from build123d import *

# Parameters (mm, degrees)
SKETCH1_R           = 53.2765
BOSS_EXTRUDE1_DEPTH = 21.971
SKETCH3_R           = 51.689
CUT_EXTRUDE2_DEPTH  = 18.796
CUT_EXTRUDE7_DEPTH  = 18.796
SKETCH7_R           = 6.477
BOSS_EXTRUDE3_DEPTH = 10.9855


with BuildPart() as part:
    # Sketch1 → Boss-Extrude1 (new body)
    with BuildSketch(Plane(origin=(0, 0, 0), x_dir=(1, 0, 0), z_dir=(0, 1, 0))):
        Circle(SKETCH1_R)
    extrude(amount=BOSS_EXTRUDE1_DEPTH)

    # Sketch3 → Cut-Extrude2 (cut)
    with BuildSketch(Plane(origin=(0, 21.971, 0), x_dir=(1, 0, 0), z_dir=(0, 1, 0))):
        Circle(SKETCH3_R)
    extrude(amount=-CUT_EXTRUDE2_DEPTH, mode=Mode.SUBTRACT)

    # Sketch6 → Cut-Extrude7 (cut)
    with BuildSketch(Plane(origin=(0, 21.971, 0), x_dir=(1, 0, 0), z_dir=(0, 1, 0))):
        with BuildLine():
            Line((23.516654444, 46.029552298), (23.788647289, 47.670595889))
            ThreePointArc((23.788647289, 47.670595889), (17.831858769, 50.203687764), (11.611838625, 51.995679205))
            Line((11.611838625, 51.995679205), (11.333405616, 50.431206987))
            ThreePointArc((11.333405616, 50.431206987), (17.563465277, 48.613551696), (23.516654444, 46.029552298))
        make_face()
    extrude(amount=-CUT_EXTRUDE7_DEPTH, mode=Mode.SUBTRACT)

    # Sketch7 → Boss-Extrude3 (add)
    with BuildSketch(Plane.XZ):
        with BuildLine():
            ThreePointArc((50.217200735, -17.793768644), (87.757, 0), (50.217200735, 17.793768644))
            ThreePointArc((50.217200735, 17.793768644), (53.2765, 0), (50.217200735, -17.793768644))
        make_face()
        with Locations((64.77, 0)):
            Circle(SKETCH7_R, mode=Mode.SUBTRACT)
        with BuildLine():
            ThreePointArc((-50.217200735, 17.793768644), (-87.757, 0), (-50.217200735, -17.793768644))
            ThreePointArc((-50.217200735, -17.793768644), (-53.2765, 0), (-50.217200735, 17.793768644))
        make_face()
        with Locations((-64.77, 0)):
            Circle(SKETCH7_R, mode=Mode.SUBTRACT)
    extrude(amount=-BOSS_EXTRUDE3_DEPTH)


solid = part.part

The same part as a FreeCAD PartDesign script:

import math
import FreeCAD as App
import Part
import Sketcher
from FreeCAD import Vector
Q = App.Units.Quantity

doc = App.newDocument("Part")
body = doc.addObject("PartDesign::Body", "Body")

# Sketch on XZ plane
sketch1 = doc.addObject("Sketcher::SketchObject", "Sketch")
body.addObject(sketch1)
sketch1.AttachmentSupport = (doc.XZ_Plane, [""])
sketch1.MapMode = "FlatFace"
sketch1.addGeometry(Part.Circle(Vector(0, 0, 0), Vector(0, 0, 1), 53), False)
sketch1.addConstraint(Sketcher.Constraint("Coincident", 0, 3, -1, 1))
sketch1.addConstraint(Sketcher.Constraint("Diameter", 0, Q("4.195 in")))
pad1 = doc.addObject("PartDesign::Pad", "Pad")
body.addObject(pad1)
pad1.Profile = sketch1
pad1.Length = Q("0.865 in")
pad1.Reversed = True

# Sketch on XZ plane
sketch2 = doc.addObject("Sketcher::SketchObject", "Sketch001")
body.addObject(sketch2)
sketch2.AttachmentSupport = (doc.XZ_Plane, [""])
sketch2.MapMode = "FlatFace"
sketch2.AttachmentOffset = App.Placement(Vector(0, 0, -0.865 * 25.4), App.Rotation())
sketch2.addGeometry(Part.Circle(Vector(0, 0, 0), Vector(0, 0, 1), 52), False)
sketch2.addConstraint(Sketcher.Constraint("Coincident", 0, 3, -1, 1))
sketch2.addConstraint(Sketcher.Constraint("Diameter", 0, Q("4.07 in")))
pocket1 = doc.addObject("PartDesign::Pocket", "Pocket")
body.addObject(pocket1)
pocket1.Profile = sketch2
pocket1.Length = Q("0.74 in")
pocket1.Reversed = True

# Sketch on XZ plane
sketch3 = doc.addObject("Sketcher::SketchObject", "Sketch002")
body.addObject(sketch3)
sketch3.AttachmentSupport = (doc.XZ_Plane, [""])
sketch3.MapMode = "FlatFace"
sketch3.AttachmentOffset = App.Placement(Vector(0, 0, -0.865 * 25.4), App.Rotation())
sketch3.addGeometry(Part.LineSegment(Vector(23.5, -46, 0), Vector(23.8, -47.7, 0)), False)
sketch3.addGeometry(Part.ArcOfCircle(Part.Circle(Vector(0, 0, 0), Vector(0, 0, 1), 53.3), math.radians(-77.41), math.radians(-63.48)), False)
sketch3.addGeometry(Part.LineSegment(Vector(11.6, -52, 0), Vector(11.3, -50.4, 0)), False)
sketch3.addGeometry(Part.ArcOfCircle(Part.Circle(Vector(0, 0, 0), Vector(0, 0, 1), 51.7), math.radians(-77.33), math.radians(-62.94)), False)
sketch3.addConstraint(Sketcher.Constraint("Coincident", 0, 2, 1, 2))
sketch3.addConstraint(Sketcher.Constraint("Coincident", 1, 1, 2, 1))
sketch3.addConstraint(Sketcher.Constraint("Coincident", 2, 2, 3, 1))
sketch3.addConstraint(Sketcher.Constraint("Coincident", 3, 2, 0, 1))
sketch3.addConstraint(Sketcher.Constraint("Coincident", 1, 3, -1, 1))
sketch3.addConstraint(Sketcher.Constraint("Coincident", 3, 3, -1, 1))
sketch3.addConstraint(Sketcher.Constraint("Radius", 3, Q("2.035 in")))
sketch3.addConstraint(Sketcher.Constraint("Radius", 1, Q("2.0975 in")))
sketch3.addConstraint(Sketcher.Constraint("Distance", 0, Q("1.663431 mm")))
sketch3.addConstraint(Sketcher.Constraint("DistanceX", -1, 1, 1, 1, Q("11.611839 mm")))
sketch3.addConstraint(Sketcher.Constraint("DistanceX", 1, 1, 0, 2, Q("12.176809 mm")))
sketch3.addConstraint(Sketcher.Constraint("DistanceX", 2, 2, 0, 2, Q("12.455242 mm")))
pocket2 = doc.addObject("PartDesign::Pocket", "Pocket001")
body.addObject(pocket2)
pocket2.Profile = sketch3
pocket2.Length = Q("0.74 in")
pocket2.Reversed = True

# Sketch on XZ plane
sketch4 = doc.addObject("Sketcher::SketchObject", "Sketch003")
body.addObject(sketch4)
sketch4.AttachmentSupport = (doc.XZ_Plane, [""])
sketch4.MapMode = "FlatFace"
sketch4.addGeometry(Part.ArcOfCircle(Part.Circle(Vector(65, 0, 0), Vector(0, 0, 1), 23), math.radians(-129), math.radians(129)), False)
sketch4.addGeometry(Part.ArcOfCircle(Part.Circle(Vector(0, 0, 0), Vector(0, 0, 1), 53), math.radians(-20), math.radians(20)), False)
sketch4.addGeometry(Part.Circle(Vector(65, 0, 0), Vector(0, 0, 1), 6), False)
sketch4.addGeometry(Part.ArcOfCircle(Part.Circle(Vector(-65, 0, 0), Vector(0, 0, 1), 23), math.radians(51), math.radians(309)), False)
sketch4.addGeometry(Part.ArcOfCircle(Part.Circle(Vector(0, 0, 0), Vector(0, 0, 1), 53), math.radians(160), math.radians(200)), False)
sketch4.addGeometry(Part.Circle(Vector(-65, 0, 0), Vector(0, 0, 1), 6), False)
sketch4.addConstraint(Sketcher.Constraint("Coincident", 0, 1, 1, 1))
sketch4.addConstraint(Sketcher.Constraint("Coincident", 1, 2, 0, 2))
sketch4.addConstraint(Sketcher.Constraint("Coincident", 3, 1, 4, 1))
sketch4.addConstraint(Sketcher.Constraint("Coincident", 4, 2, 3, 2))
sketch4.addConstraint(Sketcher.Constraint("Coincident", 1, 3, -1, 1))
sketch4.addConstraint(Sketcher.Constraint("Coincident", 4, 3, -1, 1))
sketch4.addConstraint(Sketcher.Constraint("Coincident", 2, 3, 0, 3))
sketch4.addConstraint(Sketcher.Constraint("Coincident", 5, 3, 3, 3))
sketch4.addConstraint(Sketcher.Constraint("Equal", 0, 3))
sketch4.addConstraint(Sketcher.Constraint("Equal", 1, 4))
sketch4.addConstraint(Sketcher.Constraint("Equal", 2, 5))
sketch4.addConstraint(Sketcher.Constraint("Symmetric", 0, 3, 3, 3, -1, 1))
sketch4.addConstraint(Sketcher.Constraint("PointOnObject", 0, 3, -1))
sketch4.addConstraint(Sketcher.Constraint("Diameter", 2, Q("0.51 in")))
sketch4.addConstraint(Sketcher.Constraint("Radius", 0, Q("0.905 in")))
sketch4.addConstraint(Sketcher.Constraint("Radius", 1, Q("2.0975 in")))
sketch4.addConstraint(Sketcher.Constraint("DistanceX", 3, 3, 0, 3, Q("5.1 in")))
pad2 = doc.addObject("PartDesign::Pad", "Pad001")
body.addObject(pad2)
pad2.Profile = sketch4
pad2.Length = Q("0.4325 in")
pad2.Reversed = True

doc.recompute()
